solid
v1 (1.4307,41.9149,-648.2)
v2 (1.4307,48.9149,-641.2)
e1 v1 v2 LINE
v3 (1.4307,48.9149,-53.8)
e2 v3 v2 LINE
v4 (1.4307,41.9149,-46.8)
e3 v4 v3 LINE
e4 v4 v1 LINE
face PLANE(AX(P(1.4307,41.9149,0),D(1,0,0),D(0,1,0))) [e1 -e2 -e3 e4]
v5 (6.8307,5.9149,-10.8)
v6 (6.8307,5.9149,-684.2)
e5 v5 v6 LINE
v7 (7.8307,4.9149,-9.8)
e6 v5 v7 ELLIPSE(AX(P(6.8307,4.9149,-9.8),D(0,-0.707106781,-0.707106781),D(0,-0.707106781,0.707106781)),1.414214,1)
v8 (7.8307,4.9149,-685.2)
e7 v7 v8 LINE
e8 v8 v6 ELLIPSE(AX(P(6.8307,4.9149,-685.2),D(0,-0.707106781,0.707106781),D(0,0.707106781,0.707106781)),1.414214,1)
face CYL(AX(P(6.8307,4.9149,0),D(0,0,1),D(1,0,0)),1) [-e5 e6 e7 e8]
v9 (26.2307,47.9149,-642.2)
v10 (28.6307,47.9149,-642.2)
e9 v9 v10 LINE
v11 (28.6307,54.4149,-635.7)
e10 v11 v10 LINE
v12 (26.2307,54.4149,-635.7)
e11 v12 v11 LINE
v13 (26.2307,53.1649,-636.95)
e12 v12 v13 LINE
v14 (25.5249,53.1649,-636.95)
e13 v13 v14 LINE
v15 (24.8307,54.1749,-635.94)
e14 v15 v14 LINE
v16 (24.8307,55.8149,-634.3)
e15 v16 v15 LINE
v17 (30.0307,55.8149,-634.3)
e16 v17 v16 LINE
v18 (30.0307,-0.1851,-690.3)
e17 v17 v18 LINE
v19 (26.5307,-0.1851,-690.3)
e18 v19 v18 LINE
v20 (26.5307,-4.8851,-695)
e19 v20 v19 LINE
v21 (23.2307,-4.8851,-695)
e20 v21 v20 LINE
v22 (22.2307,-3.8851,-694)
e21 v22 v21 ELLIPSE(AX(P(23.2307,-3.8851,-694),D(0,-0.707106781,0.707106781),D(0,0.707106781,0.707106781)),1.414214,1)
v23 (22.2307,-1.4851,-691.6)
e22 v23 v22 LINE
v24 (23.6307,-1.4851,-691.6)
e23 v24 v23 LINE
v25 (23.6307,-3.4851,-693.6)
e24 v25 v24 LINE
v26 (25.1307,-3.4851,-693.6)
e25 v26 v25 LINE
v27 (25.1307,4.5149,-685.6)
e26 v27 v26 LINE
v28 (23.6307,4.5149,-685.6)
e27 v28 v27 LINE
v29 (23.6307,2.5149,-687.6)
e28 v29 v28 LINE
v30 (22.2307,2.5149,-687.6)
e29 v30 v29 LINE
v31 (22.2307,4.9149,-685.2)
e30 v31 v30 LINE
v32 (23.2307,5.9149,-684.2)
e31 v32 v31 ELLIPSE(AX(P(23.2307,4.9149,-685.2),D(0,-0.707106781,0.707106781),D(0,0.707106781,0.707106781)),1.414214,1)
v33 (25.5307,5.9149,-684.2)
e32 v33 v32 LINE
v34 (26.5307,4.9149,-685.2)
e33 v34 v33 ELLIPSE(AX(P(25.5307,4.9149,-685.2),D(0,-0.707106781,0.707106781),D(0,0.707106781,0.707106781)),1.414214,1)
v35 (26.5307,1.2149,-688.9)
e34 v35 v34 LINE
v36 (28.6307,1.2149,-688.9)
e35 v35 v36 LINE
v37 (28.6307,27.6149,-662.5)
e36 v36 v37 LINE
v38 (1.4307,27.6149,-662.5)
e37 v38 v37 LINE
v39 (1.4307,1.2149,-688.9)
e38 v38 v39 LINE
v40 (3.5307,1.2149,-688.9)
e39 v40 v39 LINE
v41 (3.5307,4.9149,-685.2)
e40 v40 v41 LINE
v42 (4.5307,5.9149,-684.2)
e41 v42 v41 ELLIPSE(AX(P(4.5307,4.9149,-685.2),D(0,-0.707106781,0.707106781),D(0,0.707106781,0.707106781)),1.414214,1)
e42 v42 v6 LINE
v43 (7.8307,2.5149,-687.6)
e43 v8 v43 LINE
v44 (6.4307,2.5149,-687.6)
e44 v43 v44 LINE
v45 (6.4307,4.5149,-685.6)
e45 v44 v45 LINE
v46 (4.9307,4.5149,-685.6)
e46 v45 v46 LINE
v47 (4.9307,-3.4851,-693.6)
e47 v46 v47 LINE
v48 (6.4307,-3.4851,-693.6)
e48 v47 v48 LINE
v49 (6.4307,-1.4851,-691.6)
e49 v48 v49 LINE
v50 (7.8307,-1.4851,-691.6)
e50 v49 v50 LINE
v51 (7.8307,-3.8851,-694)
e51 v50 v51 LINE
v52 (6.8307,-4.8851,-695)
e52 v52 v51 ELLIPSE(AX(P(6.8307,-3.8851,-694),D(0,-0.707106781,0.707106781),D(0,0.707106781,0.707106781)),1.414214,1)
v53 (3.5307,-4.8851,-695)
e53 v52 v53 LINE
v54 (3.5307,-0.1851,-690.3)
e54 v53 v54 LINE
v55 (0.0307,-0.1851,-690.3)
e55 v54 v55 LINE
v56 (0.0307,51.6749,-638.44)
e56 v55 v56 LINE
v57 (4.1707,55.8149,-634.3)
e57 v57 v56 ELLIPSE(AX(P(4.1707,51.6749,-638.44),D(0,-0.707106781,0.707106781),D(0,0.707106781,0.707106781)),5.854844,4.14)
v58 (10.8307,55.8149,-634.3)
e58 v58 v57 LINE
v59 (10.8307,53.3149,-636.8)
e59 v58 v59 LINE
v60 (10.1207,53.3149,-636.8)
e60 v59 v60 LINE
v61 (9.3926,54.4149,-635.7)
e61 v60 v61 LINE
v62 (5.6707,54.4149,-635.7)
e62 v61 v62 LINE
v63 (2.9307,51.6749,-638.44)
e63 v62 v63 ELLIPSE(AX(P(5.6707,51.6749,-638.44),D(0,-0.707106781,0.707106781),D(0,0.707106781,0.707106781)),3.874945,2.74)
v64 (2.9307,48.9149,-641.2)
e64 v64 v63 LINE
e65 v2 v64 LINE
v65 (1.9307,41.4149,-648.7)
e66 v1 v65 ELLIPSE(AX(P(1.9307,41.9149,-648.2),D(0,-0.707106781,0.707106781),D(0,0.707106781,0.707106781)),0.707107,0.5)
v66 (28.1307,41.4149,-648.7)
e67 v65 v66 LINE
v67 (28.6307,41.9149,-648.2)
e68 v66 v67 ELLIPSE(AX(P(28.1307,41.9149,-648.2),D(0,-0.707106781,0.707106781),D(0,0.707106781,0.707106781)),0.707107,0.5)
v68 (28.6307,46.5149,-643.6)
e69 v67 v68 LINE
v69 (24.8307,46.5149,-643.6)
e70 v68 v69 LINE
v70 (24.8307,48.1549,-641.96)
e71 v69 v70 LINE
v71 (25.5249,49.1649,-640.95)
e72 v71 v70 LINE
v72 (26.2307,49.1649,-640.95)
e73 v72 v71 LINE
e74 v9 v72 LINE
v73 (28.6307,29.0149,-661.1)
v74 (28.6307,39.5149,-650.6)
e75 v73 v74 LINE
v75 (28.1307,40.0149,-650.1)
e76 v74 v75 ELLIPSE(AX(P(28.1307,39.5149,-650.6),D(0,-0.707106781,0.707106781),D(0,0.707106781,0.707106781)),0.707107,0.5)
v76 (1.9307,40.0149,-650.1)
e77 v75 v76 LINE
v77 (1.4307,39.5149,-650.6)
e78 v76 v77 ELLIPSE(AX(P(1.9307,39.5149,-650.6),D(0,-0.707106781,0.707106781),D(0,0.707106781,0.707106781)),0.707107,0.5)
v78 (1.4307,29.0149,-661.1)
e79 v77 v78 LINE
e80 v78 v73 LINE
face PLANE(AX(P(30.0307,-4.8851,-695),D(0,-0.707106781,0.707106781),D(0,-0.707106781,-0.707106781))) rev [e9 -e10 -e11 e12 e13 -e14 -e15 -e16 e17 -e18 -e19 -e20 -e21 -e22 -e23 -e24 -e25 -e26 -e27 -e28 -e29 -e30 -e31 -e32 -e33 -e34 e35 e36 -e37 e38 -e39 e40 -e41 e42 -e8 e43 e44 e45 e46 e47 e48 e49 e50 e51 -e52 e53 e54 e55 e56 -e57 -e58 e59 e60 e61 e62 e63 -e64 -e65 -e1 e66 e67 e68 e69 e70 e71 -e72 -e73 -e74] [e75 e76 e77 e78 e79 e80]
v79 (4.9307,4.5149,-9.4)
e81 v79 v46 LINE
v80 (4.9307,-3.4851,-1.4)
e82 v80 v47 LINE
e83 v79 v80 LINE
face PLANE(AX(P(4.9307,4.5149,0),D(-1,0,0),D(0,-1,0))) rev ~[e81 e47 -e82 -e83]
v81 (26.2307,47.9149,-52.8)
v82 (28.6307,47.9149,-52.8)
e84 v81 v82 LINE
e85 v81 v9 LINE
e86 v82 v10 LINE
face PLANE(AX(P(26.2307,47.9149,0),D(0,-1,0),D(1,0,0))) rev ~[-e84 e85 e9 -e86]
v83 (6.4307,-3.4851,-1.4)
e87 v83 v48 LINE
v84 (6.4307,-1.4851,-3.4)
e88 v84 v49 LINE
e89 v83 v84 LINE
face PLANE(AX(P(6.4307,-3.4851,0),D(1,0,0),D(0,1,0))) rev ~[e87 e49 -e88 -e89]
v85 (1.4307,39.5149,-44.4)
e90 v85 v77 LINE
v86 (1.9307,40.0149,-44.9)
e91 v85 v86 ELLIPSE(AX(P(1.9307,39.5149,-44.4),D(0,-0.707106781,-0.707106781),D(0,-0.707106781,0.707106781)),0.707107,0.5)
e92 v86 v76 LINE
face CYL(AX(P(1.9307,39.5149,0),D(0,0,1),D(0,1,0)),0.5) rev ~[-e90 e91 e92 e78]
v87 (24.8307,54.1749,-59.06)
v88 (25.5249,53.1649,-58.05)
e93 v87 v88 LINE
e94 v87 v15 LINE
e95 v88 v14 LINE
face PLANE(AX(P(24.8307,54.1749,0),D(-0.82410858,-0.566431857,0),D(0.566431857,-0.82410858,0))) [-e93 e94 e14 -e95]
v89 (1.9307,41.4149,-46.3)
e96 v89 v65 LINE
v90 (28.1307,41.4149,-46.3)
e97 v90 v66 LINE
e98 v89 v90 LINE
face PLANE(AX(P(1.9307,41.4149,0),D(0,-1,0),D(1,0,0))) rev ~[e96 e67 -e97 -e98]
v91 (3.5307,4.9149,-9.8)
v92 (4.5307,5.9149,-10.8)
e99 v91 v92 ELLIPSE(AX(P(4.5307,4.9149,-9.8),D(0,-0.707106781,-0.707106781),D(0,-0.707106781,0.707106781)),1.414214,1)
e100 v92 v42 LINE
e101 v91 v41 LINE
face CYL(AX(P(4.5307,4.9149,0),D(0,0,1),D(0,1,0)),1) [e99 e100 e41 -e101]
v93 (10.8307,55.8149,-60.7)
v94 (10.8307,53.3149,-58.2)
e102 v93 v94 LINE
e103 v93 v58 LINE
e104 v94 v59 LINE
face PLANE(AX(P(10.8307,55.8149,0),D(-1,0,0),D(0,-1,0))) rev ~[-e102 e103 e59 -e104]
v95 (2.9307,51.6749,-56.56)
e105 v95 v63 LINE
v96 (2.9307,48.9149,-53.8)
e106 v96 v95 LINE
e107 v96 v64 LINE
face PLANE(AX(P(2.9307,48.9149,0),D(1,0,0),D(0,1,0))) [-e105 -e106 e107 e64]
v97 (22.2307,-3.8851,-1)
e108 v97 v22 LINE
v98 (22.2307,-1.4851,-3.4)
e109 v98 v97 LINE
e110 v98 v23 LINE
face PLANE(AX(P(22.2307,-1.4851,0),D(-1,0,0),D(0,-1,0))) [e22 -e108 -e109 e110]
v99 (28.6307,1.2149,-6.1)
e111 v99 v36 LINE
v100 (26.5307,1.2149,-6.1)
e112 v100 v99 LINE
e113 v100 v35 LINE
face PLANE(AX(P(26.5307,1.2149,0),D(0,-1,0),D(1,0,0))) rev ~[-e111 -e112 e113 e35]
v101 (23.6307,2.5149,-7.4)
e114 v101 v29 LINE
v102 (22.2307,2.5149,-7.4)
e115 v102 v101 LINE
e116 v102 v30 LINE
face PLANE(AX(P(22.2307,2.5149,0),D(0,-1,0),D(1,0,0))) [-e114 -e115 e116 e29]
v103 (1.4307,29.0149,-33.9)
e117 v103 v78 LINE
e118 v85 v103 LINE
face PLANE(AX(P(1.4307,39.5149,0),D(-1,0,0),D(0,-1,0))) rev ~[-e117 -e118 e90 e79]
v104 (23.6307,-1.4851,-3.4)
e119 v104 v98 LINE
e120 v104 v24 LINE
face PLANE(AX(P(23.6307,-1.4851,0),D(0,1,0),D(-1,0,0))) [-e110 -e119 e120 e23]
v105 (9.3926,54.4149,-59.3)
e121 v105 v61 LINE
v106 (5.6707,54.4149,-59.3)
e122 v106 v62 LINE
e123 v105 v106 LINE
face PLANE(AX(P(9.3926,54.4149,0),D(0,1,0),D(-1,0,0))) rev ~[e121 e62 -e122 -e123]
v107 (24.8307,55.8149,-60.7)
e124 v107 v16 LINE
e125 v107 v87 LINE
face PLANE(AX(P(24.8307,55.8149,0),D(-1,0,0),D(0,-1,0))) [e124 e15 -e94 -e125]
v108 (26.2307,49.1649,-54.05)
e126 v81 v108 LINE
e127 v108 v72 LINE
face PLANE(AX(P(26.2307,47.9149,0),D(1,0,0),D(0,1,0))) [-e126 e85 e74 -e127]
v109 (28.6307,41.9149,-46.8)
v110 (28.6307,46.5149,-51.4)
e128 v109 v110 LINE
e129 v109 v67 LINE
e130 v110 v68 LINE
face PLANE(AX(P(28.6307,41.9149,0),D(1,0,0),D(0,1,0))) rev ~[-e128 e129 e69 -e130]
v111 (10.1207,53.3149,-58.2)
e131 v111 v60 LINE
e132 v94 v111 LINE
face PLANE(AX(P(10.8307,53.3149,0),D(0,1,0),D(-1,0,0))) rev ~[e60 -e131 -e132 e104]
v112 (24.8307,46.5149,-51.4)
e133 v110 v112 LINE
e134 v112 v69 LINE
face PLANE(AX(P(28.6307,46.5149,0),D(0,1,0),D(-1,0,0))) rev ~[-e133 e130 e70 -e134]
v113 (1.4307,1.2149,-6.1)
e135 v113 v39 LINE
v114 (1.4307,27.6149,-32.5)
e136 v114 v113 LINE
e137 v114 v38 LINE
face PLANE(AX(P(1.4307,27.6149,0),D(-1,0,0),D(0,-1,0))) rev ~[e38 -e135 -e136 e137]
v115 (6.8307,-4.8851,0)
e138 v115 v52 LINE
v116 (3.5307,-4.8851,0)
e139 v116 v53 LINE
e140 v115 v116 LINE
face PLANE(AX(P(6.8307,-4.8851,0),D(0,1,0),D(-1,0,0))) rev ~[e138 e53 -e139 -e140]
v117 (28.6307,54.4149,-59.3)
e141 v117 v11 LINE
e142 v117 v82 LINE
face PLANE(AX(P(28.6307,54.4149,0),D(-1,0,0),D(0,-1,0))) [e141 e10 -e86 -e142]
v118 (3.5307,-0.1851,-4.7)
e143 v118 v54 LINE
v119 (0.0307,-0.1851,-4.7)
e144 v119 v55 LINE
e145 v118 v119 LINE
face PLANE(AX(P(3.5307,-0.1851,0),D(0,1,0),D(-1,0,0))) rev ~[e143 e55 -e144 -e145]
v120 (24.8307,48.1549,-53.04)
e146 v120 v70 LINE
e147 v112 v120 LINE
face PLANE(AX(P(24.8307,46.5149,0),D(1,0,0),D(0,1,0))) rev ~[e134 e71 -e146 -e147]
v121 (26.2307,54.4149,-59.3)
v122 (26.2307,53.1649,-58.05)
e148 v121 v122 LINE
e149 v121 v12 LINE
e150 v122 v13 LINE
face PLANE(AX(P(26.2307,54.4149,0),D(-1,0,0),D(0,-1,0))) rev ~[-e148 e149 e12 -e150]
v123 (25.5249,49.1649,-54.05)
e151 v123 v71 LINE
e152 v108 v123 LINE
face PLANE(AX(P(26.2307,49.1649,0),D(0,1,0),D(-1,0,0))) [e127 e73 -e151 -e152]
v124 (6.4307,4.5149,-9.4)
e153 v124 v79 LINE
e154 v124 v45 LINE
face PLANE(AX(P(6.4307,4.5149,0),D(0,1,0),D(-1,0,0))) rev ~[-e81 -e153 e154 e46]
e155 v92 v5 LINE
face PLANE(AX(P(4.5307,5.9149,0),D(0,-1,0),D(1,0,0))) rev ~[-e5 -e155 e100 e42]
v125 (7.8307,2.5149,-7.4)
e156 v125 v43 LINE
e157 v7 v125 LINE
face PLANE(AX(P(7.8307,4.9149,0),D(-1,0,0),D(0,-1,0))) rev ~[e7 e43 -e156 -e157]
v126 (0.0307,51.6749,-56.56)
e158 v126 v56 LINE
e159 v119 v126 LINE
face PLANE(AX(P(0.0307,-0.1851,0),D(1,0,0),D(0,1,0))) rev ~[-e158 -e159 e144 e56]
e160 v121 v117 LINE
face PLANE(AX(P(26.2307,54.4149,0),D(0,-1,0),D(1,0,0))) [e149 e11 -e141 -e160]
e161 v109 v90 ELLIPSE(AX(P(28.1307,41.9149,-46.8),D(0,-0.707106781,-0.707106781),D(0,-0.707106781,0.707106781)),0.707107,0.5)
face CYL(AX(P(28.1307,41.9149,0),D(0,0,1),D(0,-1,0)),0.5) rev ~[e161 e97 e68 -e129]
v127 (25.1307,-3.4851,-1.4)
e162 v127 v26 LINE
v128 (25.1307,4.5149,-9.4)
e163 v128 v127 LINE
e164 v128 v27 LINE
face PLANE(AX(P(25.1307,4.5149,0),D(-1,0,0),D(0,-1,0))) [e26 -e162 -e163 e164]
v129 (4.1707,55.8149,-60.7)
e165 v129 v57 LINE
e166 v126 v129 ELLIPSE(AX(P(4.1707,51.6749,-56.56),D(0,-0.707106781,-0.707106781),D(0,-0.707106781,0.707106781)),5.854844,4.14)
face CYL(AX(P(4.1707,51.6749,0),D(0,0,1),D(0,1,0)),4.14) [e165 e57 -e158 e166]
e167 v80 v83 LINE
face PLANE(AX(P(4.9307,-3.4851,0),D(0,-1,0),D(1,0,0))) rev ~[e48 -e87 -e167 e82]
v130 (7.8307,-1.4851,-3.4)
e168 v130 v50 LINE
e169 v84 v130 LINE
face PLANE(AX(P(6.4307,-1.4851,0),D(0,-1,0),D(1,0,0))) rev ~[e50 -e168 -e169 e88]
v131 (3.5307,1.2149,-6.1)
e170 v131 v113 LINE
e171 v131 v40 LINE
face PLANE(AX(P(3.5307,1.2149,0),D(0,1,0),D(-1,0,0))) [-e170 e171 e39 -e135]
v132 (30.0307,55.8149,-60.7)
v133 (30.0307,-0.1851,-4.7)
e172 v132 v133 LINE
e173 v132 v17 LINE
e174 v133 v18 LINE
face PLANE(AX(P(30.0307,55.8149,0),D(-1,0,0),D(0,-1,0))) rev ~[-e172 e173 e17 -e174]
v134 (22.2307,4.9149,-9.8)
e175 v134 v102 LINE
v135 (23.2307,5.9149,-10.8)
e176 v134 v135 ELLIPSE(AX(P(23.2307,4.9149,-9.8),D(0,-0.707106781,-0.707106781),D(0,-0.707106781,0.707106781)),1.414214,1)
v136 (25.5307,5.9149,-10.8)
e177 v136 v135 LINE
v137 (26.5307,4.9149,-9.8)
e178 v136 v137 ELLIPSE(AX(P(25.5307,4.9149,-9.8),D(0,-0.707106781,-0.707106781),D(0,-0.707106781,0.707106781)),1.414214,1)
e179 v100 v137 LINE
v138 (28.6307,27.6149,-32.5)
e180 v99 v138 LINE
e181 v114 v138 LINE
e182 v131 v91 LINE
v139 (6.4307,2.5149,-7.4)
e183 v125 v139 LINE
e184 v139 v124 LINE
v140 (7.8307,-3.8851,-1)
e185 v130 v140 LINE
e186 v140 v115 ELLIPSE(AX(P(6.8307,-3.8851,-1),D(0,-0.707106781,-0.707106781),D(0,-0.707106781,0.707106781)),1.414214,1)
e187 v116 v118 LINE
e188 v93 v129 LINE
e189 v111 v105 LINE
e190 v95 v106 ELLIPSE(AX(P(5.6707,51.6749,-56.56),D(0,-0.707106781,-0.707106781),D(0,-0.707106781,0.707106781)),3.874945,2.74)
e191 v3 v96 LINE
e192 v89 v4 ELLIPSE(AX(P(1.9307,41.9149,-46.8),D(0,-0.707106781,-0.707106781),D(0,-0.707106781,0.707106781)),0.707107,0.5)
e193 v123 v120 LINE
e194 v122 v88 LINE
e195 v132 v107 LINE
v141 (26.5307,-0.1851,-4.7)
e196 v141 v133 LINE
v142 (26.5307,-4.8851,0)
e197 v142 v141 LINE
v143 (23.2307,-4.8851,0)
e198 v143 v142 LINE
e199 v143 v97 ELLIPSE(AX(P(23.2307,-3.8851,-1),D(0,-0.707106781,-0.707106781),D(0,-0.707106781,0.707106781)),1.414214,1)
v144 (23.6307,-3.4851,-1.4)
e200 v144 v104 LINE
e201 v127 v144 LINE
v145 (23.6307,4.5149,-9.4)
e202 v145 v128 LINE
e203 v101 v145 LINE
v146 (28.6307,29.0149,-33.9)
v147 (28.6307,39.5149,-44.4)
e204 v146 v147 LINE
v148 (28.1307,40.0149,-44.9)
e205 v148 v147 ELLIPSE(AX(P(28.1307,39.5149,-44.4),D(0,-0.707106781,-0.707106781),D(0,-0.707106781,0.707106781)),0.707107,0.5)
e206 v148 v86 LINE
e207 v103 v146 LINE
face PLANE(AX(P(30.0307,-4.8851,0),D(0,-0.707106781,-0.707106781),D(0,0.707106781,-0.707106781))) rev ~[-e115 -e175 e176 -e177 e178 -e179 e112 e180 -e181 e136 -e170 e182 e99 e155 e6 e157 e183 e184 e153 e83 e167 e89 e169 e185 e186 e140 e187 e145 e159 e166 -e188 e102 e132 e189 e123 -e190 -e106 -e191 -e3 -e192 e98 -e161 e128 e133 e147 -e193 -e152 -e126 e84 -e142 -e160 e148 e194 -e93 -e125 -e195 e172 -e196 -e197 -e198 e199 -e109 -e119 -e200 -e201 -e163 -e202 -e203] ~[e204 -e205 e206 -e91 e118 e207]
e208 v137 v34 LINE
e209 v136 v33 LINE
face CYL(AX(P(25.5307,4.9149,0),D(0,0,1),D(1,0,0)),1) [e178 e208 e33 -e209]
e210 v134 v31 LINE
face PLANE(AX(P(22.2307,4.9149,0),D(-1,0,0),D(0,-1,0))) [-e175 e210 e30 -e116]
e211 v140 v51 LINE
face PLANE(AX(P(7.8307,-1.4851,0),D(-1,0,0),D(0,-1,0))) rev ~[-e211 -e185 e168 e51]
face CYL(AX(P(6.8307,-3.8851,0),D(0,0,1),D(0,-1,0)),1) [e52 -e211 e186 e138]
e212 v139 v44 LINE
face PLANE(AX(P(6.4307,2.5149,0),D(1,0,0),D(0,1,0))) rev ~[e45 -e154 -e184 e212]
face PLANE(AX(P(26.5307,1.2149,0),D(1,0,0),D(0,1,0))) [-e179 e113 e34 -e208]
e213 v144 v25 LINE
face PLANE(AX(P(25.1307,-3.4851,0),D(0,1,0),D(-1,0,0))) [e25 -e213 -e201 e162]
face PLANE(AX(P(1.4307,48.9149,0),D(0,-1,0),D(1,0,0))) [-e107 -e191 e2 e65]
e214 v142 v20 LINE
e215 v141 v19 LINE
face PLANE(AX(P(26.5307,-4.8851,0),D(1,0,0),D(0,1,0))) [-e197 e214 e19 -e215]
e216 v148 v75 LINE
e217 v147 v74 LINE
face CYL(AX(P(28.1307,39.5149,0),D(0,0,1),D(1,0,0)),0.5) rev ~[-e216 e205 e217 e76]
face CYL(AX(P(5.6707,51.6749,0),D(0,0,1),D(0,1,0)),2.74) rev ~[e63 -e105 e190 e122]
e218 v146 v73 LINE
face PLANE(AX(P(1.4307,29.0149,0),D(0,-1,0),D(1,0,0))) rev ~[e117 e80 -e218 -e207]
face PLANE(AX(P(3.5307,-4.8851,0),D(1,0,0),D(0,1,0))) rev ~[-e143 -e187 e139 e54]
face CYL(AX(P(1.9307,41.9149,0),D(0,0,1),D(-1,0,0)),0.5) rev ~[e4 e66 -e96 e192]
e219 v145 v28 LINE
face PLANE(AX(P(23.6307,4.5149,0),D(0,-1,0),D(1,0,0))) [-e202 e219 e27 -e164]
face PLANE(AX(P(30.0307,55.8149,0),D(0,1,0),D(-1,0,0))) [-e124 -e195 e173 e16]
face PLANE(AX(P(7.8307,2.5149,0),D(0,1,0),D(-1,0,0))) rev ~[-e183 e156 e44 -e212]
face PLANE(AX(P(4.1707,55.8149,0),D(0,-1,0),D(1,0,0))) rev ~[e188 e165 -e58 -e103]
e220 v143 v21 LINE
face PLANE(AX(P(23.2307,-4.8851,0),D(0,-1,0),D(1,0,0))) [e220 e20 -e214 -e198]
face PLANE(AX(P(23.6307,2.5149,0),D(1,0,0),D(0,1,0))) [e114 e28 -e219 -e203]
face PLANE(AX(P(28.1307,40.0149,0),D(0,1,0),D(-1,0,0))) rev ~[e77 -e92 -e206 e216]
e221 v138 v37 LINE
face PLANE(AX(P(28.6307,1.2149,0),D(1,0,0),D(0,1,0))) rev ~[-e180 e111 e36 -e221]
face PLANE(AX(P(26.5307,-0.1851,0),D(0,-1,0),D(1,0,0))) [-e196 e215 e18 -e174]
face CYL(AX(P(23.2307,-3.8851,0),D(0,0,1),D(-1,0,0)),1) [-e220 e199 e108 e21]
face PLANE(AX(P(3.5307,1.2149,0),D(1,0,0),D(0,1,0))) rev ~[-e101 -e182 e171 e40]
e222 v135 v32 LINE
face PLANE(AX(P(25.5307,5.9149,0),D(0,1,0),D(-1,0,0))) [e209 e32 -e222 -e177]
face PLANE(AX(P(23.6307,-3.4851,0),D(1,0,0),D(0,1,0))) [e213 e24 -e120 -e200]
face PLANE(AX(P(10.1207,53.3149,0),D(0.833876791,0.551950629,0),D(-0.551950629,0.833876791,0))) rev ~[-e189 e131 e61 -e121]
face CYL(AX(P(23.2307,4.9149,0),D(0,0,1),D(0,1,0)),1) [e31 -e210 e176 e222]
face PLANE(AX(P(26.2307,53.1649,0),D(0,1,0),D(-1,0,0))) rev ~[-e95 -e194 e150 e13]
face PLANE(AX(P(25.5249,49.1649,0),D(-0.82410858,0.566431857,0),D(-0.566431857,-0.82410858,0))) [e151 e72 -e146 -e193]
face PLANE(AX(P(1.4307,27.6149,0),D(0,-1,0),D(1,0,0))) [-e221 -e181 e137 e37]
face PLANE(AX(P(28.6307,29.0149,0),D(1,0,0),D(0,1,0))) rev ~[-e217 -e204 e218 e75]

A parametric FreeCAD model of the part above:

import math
import FreeCAD as App
import Part
import Sketcher

V = App.Vector
Q = App.Units.Quantity

doc = App.newDocument("Part")
body = doc.addObject("PartDesign::Body", "Body")

sketch1 = body.newObject("Sketcher::SketchObject", "Sketch")
sketch1.AttachmentSupport = (doc.getObject("XY_Plane"), [""])
sketch1.MapMode = "FlatFace"
sketch1.addGeometry(Part.LineSegment(V(28.1, 41.4, 0), V(1.9, 41.4, 0)), False)
sketch1.addGeometry(Part.ArcOfCircle(Part.Circle(V(1.9, 41.9, 0), V(0, 0, 1), 0.5), math.radians(180), math.radians(270)), False)
sketch1.addGeometry(Part.LineSegment(V(1.4, 41.9, 0), V(1.4, 48.9, 0)), False)
sketch1.addGeometry(Part.LineSegment(V(1.4, 48.9, 0), V(2.9, 48.9, 0)), False)
sketch1.addGeometry(Part.LineSegment(V(2.9, 48.9, 0), V(2.9, 51.7, 0)), False)
sketch1.addGeometry(Part.ArcOfCircle(Part.Circle(V(5.7, 51.7, 0), V(0, 0, 1), 2.7), math.radians(90), math.radians(180)), False)
sketch1.addGeometry(Part.LineSegment(V(5.7, 54.4, 0), V(9.4, 54.4, 0)), False)
sketch1.addGeometry(Part.LineSegment(V(9.4, 54.4, 0), V(10.1, 53.3, 0)), False)
sketch1.addGeometry(Part.LineSegment(V(10.1, 53.3, 0), V(10.8, 53.3, 0)), False)
sketch1.addGeometry(Part.LineSegment(V(10.8, 53.3, 0), V(10.8, 55.8, 0)), False)
sketch1.addGeometry(Part.LineSegment(V(10.8, 55.8, 0), V(4.2, 55.8, 0)), False)
sketch1.addGeometry(Part.ArcOfCircle(Part.Circle(V(4.2, 51.7, 0), V(0, 0, 1), 4.1), math.radians(90), math.radians(180)), False)
sketch1.addGeometry(Part.LineSegment(V(0, 51.7, 0), V(0, -0.2, 0)), False)
sketch1.addGeometry(Part.LineSegment(V(0, -0.2, 0), V(3.5, -0.2, 0)), False)
sketch1.addGeometry(Part.LineSegment(V(3.5, -0.2, 0), V(3.5, -4.9, 0)), False)
sketch1.addGeometry(Part.LineSegment(V(3.5, -4.9, 0), V(6.8, -4.9, 0)), False)
sketch1.addGeometry(Part.ArcOfCircle(Part.Circle(V(6.8, -3.9, 0), V(0, 0, 1), 1), math.radians(-90), math.radians(0)), False)
sketch1.addGeometry(Part.LineSegment(V(7.8, -3.9, 0), V(7.8, -1.5, 0)), False)
sketch1.addGeometry(Part.LineSegment(V(7.8, -1.5, 0), V(6.4, -1.5, 0)), False)
sketch1.addGeometry(Part.LineSegment(V(6.4, -1.5, 0), V(6.4, -3.5, 0)), False)
sketch1.addGeometry(Part.LineSegment(V(6.4, -3.5, 0), V(4.9, -3.5, 0)), False)
sketch1.addGeometry(Part.LineSegment(V(4.9, -3.5, 0), V(4.9, 4.5, 0)), False)
sketch1.addGeometry(Part.LineSegment(V(4.9, 4.5, 0), V(6.4, 4.5, 0)), False)
sketch1.addGeometry(Part.LineSegment(V(6.4, 4.5, 0), V(6.4, 2.5, 0)), False)
sketch1.addGeometry(Part.LineSegment(V(6.4, 2.5, 0), V(7.8, 2.5, 0)), False)
sketch1.addGeometry(Part.LineSegment(V(7.8, 2.5, 0), V(7.8, 4.9, 0)), False)
sketch1.addGeometry(Part.ArcOfCircle(Part.Circle(V(6.8, 4.9, 0), V(0, 0, 1), 1), math.radians(0), math.radians(90)), False)
sketch1.addGeometry(Part.LineSegment(V(6.8, 5.9, 0), V(4.5, 5.9, 0)), False)
sketch1.addGeometry(Part.ArcOfCircle(Part.Circle(V(4.5, 4.9, 0), V(0, 0, 1), 1), math.radians(90), math.radians(180)), False)
sketch1.addGeometry(Part.LineSegment(V(3.5, 4.9, 0), V(3.5, 1.2, 0)), False)
sketch1.addGeometry(Part.LineSegment(V(3.5, 1.2, 0), V(1.4, 1.2, 0)), False)
sketch1.addGeometry(Part.LineSegment(V(1.4, 1.2, 0), V(1.4, 27.6, 0)), False)
sketch1.addGeometry(Part.LineSegment(V(1.4, 27.6, 0), V(28.6, 27.6, 0)), False)
sketch1.addGeometry(Part.LineSegment(V(28.6, 27.6, 0), V(28.6, 1.2, 0)), False)
sketch1.addGeometry(Part.LineSegment(V(28.6, 1.2, 0), V(26.5, 1.2, 0)), False)
sketch1.addGeometry(Part.LineSegment(V(26.5, 1.2, 0), V(26.5, 4.9, 0)), False)
sketch1.addGeometry(Part.ArcOfCircle(Part.Circle(V(25.5, 4.9, 0), V(0, 0, 1), 1), math.radians(0), math.radians(90)), False)
sketch1.addGeometry(Part.LineSegment(V(25.5, 5.9, 0), V(23.2, 5.9, 0)), False)
sketch1.addGeometry(Part.ArcOfCircle(Part.Circle(V(23.2, 4.9, 0), V(0, 0, 1), 1), math.radians(90), math.radians(180)), False)
sketch1.addGeometry(Part.LineSegment(V(22.2, 4.9, 0), V(22.2, 2.5, 0)), False)
sketch1.addGeometry(Part.LineSegment(V(22.2, 2.5, 0), V(23.6, 2.5, 0)), False)
sketch1.addGeometry(Part.LineSegment(V(23.6, 2.5, 0), V(23.6, 4.5, 0)), False)
sketch1.addGeometry(Part.LineSegment(V(23.6, 4.5, 0), V(25.1, 4.5, 0)), False)
sketch1.addGeometry(Part.LineSegment(V(25.1, 4.5, 0), V(25.1, -3.5, 0)), False)
sketch1.addGeometry(Part.LineSegment(V(25.1, -3.5, 0), V(23.6, -3.5, 0)), False)
sketch1.addGeometry(Part.LineSegment(V(23.6, -3.5, 0), V(23.6, -1.5, 0)), False)
sketch1.addGeometry(Part.LineSegment(V(23.6, -1.5, 0), V(22.2, -1.5, 0)), False)
sketch1.addGeometry(Part.LineSegment(V(22.2, -1.5, 0), V(22.2, -3.9, 0)), False)
sketch1.addGeometry(Part.ArcOfCircle(Part.Circle(V(23.2, -3.9, 0), V(0, 0, 1), 1), math.radians(180), math.radians(270)), False)
sketch1.addGeometry(Part.LineSegment(V(23.2, -4.9, 0), V(26.5, -4.9, 0)), False)
sketch1.addGeometry(Part.LineSegment(V(26.5, -4.9, 0), V(26.5, -0.2, 0)), False)
sketch1.addGeometry(Part.LineSegment(V(26.5, -0.2, 0), V(30, -0.2, 0)), False)
sketch1.addGeometry(Part.LineSegment(V(30, -0.2, 0), V(30, 55.8, 0)), False)
sketch1.addGeometry(Part.LineSegment(V(30, 55.8, 0), V(24.8, 55.8, 0)), False)
sketch1.addGeometry(Part.LineSegment(V(24.8, 55.8, 0), V(24.8, 54.2, 0)), False)
sketch1.addGeometry(Part.LineSegment(V(24.8, 54.2, 0), V(25.5, 53.2, 0)), False)
sketch1.addGeometry(Part.LineSegment(V(25.5, 53.2, 0), V(26.2, 53.2, 0)), False)
sketch1.addGeometry(Part.LineSegment(V(26.2, 53.2, 0), V(26.2, 54.4, 0)), False)
sketch1.addGeometry(Part.LineSegment(V(26.2, 54.4, 0), V(28.6, 54.4, 0)), False)
sketch1.addGeometry(Part.LineSegment(V(28.6, 54.4, 0), V(28.6, 47.9, 0)), False)
sketch1.addGeometry(Part.LineSegment(V(28.6, 47.9, 0), V(26.2, 47.9, 0)), False)
sketch1.addGeometry(Part.LineSegment(V(26.2, 47.9, 0), V(26.2, 49.2, 0)), False)
sketch1.addGeometry(Part.LineSegment(V(26.2, 49.2, 0), V(25.5, 49.2, 0)), False)
sketch1.addGeometry(Part.LineSegment(V(25.5, 49.2, 0), V(24.8, 48.2, 0)), False)
sketch1.addGeometry(Part.LineSegment(V(24.8, 48.2, 0), V(24.8, 46.5, 0)), False)
sketch1.addGeometry(Part.LineSegment(V(24.8, 46.5, 0), V(28.6, 46.5, 0)), False)
sketch1.addGeometry(Part.LineSegment(V(28.6, 46.5, 0), V(28.6, 41.9, 0)), False)
sketch1.addGeometry(Part.ArcOfCircle(Part.Circle(V(28.1, 41.9, 0), V(0, 0, 1), 0.5), math.radians(-90), math.radians(0)), False)
sketch1.addGeometry(Part.LineSegment(V(1.9, 40, 0), V(28.1, 40, 0)), False)
sketch1.addGeometry(Part.ArcOfCircle(Part.Circle(V(28.1, 39.5, 0), V(0, 0, 1), 0.5), math.radians(0), math.radians(90)), False)
sketch1.addGeometry(Part.LineSegment(V(28.6, 39.5, 0), V(28.6, 29, 0)), False)
sketch1.addGeometry(Part.LineSegment(V(28.6, 29, 0), V(1.4, 29, 0)), False)
sketch1.addGeometry(Part.LineSegment(V(1.4, 29, 0), V(1.4, 39.5, 0)), False)
sketch1.addGeometry(Part.ArcOfCircle(Part.Circle(V(1.9, 39.5, 0), V(0, 0, 1), 0.5), math.radians(90), math.radians(180)), False)
sketch1.addConstraint(Sketcher.Constraint("Tangent", 0, 2, 1, 2))
sketch1.addConstraint(Sketcher.Constraint("Tangent", 1, 1, 2, 1))
sketch1.addConstraint(Sketcher.Constraint("Coincident", 2, 2, 3, 1))
sketch1.addConstraint(Sketcher.Constraint("Coincident", 3, 2, 4, 1))
sketch1.addConstraint(Sketcher.Constraint("Tangent", 4, 2, 5, 2))
sketch1.addConstraint(Sketcher.Constraint("Tangent", 5, 1, 6, 1))
sketch1.addConstraint(Sketcher.Constraint("Coincident", 6, 2, 7, 1))
sketch1.addConstraint(Sketcher.Constraint("Coincident", 7, 2, 8, 1))
sketch1.addConstraint(Sketcher.Constraint("Coincident", 8, 2, 9, 1))
sketch1.addConstraint(Sketcher.Constraint("Coincident", 9, 2, 10, 1))
sketch1.addConstraint(Sketcher.Constraint("Tangent", 10, 2, 11, 1))
sketch1.addConstraint(Sketcher.Constraint("Tangent", 11, 2, 12, 1))
sketch1.addConstraint(Sketcher.Constraint("Coincident", 12, 2, 13, 1))
sketch1.addConstraint(Sketcher.Constraint("Coincident", 13, 2, 14, 1))
sketch1.addConstraint(Sketcher.Constraint("Coincident", 14, 2, 15, 1))
sketch1.addConstraint(Sketcher.Constraint("Tangent", 15, 2, 16, 1))
sketch1.addConstraint(Sketcher.Constraint("Tangent", 16, 2, 17, 1))
sketch1.addConstraint(Sketcher.Constraint("Coincident", 17, 2, 18, 1))
sketch1.addConstraint(Sketcher.Constraint("Coincident", 18, 2, 19, 1))
sketch1.addConstraint(Sketcher.Constraint("Coincident", 19, 2, 20, 1))
sketch1.addConstraint(Sketcher.Constraint("Coincident", 20, 2, 21, 1))
sketch1.addConstraint(Sketcher.Constraint("Coincident", 21, 2, 22, 1))
sketch1.addConstraint(Sketcher.Constraint("Coincident", 22, 2, 23, 1))
sketch1.addConstraint(Sketcher.Constraint("Coincident", 23, 2, 24, 1))
sketch1.addConstraint(Sketcher.Constraint("Coincident", 24, 2, 25, 1))
sketch1.addConstraint(Sketcher.Constraint("Tangent", 25, 2, 26, 1))
sketch1.addConstraint(Sketcher.Constraint("Tangent", 26, 2, 27, 1))
sketch1.addConstraint(Sketcher.Constraint("Tangent", 27, 2, 28, 1))
sketch1.addConstraint(Sketcher.Constraint("Tangent", 28, 2, 29, 1))
sketch1.addConstraint(Sketcher.Constraint("Coincident", 29, 2, 30, 1))
sketch1.addConstraint(Sketcher.Constraint("Coincident", 30, 2, 31, 1))
sketch1.addConstraint(Sketcher.Constraint("Coincident", 31, 2, 32, 1))
sketch1.addConstraint(Sketcher.Constraint("Coincident", 32, 2, 33, 1))
sketch1.addConstraint(Sketcher.Constraint("Coincident", 33, 2, 34, 1))
sketch1.addConstraint(Sketcher.Constraint("Coincident", 34, 2, 35, 1))
sketch1.addConstraint(Sketcher.Constraint("Tangent", 35, 2, 36, 1))
sketch1.addConstraint(Sketcher.Constraint("Tangent", 36, 2, 37, 1))
sketch1.addConstraint(Sketcher.Constraint("Tangent", 37, 2, 38, 1))
sketch1.addConstraint(Sketcher.Constraint("Tangent", 38, 2, 39, 1))
sketch1.addConstraint(Sketcher.Constraint("Coincident", 39, 2, 40, 1))
sketch1.addConstraint(Sketcher.Constraint("Coincident", 40, 2, 41, 1))
sketch1.addConstraint(Sketcher.Constraint("Coincident", 41, 2, 42, 1))
sketch1.addConstraint(Sketcher.Constraint("Coincident", 42, 2, 43, 1))
sketch1.addConstraint(Sketcher.Constraint("Coincident", 43, 2, 44, 1))
sketch1.addConstraint(Sketcher.Constraint("Coincident", 44, 2, 45, 1))
sketch1.addConstraint(Sketcher.Constraint("Coincident", 45, 2, 46, 1))
sketch1.addConstraint(Sketcher.Constraint("Coincident", 46, 2, 47, 1))
sketch1.addConstraint(Sketcher.Constraint("Tangent", 47, 2, 48, 1))
sketch1.addConstraint(Sketcher.Constraint("Tangent", 48, 2, 49, 1))
sketch1.addConstraint(Sketcher.Constraint("Coincident", 49, 2, 50, 1))
sketch1.addConstraint(Sketcher.Constraint("Coincident", 50, 2, 51, 1))
sketch1.addConstraint(Sketcher.Constraint("Coincident", 51, 2, 52, 1))
sketch1.addConstraint(Sketcher.Constraint("Coincident", 52, 2, 53, 1))
sketch1.addConstraint(Sketcher.Constraint("Coincident", 53, 2, 54, 1))
sketch1.addConstraint(Sketcher.Constraint("Coincident", 54, 2, 55, 1))
sketch1.addConstraint(Sketcher.Constraint("Coincident", 55, 2, 56, 1))
sketch1.addConstraint(Sketcher.Constraint("Coincident", 56, 2, 57, 1))
sketch1.addConstraint(Sketcher.Constraint("Coincident", 57, 2, 58, 1))
sketch1.addConstraint(Sketcher.Constraint("Coincident", 58, 2, 59, 1))
sketch1.addConstraint(Sketcher.Constraint("Coincident", 59, 2, 60, 1))
sketch1.addConstraint(Sketcher.Constraint("Coincident", 60, 2, 61, 1))
sketch1.addConstraint(Sketcher.Constraint("Coincident", 61, 2, 62, 1))
sketch1.addConstraint(Sketcher.Constraint("Coincident", 62, 2, 63, 1))
sketch1.addConstraint(Sketcher.Constraint("Coincident", 63, 2, 64, 1))
sketch1.addConstraint(Sketcher.Constraint("Coincident", 64, 2, 65, 1))
sketch1.addConstraint(Sketcher.Constraint("Coincident", 65, 2, 66, 1))
sketch1.addConstraint(Sketcher.Constraint("Tangent", 66, 2, 67, 2))
sketch1.addConstraint(Sketcher.Constraint("Tangent", 67, 1, 0, 1))
sketch1.addConstraint(Sketcher.Constraint("Tangent", 68, 2, 69, 2))
sketch1.addConstraint(Sketcher.Constraint("Tangent", 69, 1, 70, 1))
sketch1.addConstraint(Sketcher.Constraint("Coincident", 70, 2, 71, 1))
sketch1.addConstraint(Sketcher.Constraint("Coincident", 71, 2, 72, 1))
sketch1.addConstraint(Sketcher.Constraint("Tangent", 72, 2, 73, 2))
sketch1.addConstraint(Sketcher.Constraint("Tangent", 73, 1, 68, 1))
sketch1.addConstraint(Sketcher.Constraint("Horizontal", 0))
sketch1.addConstraint(Sketcher.Constraint("Vertical", 2))
sketch1.addConstraint(Sketcher.Constraint("Horizontal", 3))
sketch1.addConstraint(Sketcher.Constraint("Vertical", 4))
sketch1.addConstraint(Sketcher.Constraint("Horizontal", 6))
sketch1.addConstraint(Sketcher.Constraint("Horizontal", 8))
sketch1.addConstraint(Sketcher.Constraint("Vertical", 9))
sketch1.addConstraint(Sketcher.Constraint("Horizontal", 10))
sketch1.addConstraint(Sketcher.Constraint("Vertical", 12))
sketch1.addConstraint(Sketcher.Constraint("Horizontal", 13))
sketch1.addConstraint(Sketcher.Constraint("Vertical", 14))
sketch1.addConstraint(Sketcher.Constraint("Horizontal", 15))
sketch1.addConstraint(Sketcher.Constraint("Vertical", 17))
sketch1.addConstraint(Sketcher.Constraint("Horizontal", 18))
sketch1.addConstraint(Sketcher.Constraint("Vertical", 19))
sketch1.addConstraint(Sketcher.Constraint("Horizontal", 20))
sketch1.addConstraint(Sketcher.Constraint("Vertical", 21))
sketch1.addConstraint(Sketcher.Constraint("Horizontal", 22))
sketch1.addConstraint(Sketcher.Constraint("Vertical", 23))
sketch1.addConstraint(Sketcher.Constraint("Horizontal", 24))
sketch1.addConstraint(Sketcher.Constraint("Vertical", 25))
sketch1.addConstraint(Sketcher.Constraint("Horizontal", 27))
sketch1.addConstraint(Sketcher.Constraint("Vertical", 29))
sketch1.addConstraint(Sketcher.Constraint("Horizontal", 30))
sketch1.addConstraint(Sketcher.Constraint("Vertical", 31))
sketch1.addConstraint(Sketcher.Constraint("Horizontal", 32))
sketch1.addConstraint(Sketcher.Constraint("Vertical", 33))
sketch1.addConstraint(Sketcher.Constraint("Horizontal", 34))
sketch1.addConstraint(Sketcher.Constraint("Vertical", 35))
sketch1.addConstraint(Sketcher.Constraint("Horizontal", 37))
sketch1.addConstraint(Sketcher.Constraint("Vertical", 39))
sketch1.addConstraint(Sketcher.Constraint("Horizontal", 40))
sketch1.addConstraint(Sketcher.Constraint("Vertical", 41))
sketch1.addConstraint(Sketcher.Constraint("Horizontal", 42))
sketch1.addConstraint(Sketcher.Constraint("Vertical", 43))
sketch1.addConstraint(Sketcher.Constraint("Horizontal", 44))
sketch1.addConstraint(Sketcher.Constraint("Vertical", 45))
sketch1.addConstraint(Sketcher.Constraint("Horizontal", 46))
sketch1.addConstraint(Sketcher.Constraint("Vertical", 47))
sketch1.addConstraint(Sketcher.Constraint("Horizontal", 49))
sketch1.addConstraint(Sketcher.Constraint("Vertical", 50))
sketch1.addConstraint(Sketcher.Constraint("Horizontal", 51))
sketch1.addConstraint(Sketcher.Constraint("Vertical", 52))
sketch1.addConstraint(Sketcher.Constraint("Horizontal", 53))
sketch1.addConstraint(Sketcher.Constraint("Vertical", 54))
sketch1.addConstraint(Sketcher.Constraint("Horizontal", 56))
sketch1.addConstraint(Sketcher.Constraint("Vertical", 57))
sketch1.addConstraint(Sketcher.Constraint("Horizontal", 58))
sketch1.addConstraint(Sketcher.Constraint("Vertical", 59))
sketch1.addConstraint(Sketcher.Constraint("Horizontal", 60))
sketch1.addConstraint(Sketcher.Constraint("Vertical", 61))
sketch1.addConstraint(Sketcher.Constraint("Horizontal", 62))
sketch1.addConstraint(Sketcher.Constraint("Vertical", 64))
sketch1.addConstraint(Sketcher.Constraint("Horizontal", 65))
sketch1.addConstraint(Sketcher.Constraint("Vertical", 66))
sketch1.addConstraint(Sketcher.Constraint("Horizontal", 68))
sketch1.addConstraint(Sketcher.Constraint("Vertical", 70))
sketch1.addConstraint(Sketcher.Constraint("Horizontal", 71))
sketch1.addConstraint(Sketcher.Constraint("Vertical", 72))
sketch1.addConstraint(Sketcher.Constraint("Equal", 16, 26))
sketch1.addConstraint(Sketcher.Constraint("Equal", 26, 28))
sketch1.addConstraint(Sketcher.Constraint("Equal", 28, 36))
sketch1.addConstraint(Sketcher.Constraint("Equal", 36, 38))
sketch1.addConstraint(Sketcher.Constraint("Equal", 38, 48))
sketch1.addConstraint(Sketcher.Constraint("Equal", 1, 67))
sketch1.addConstraint(Sketcher.Constraint("Equal", 67, 69))
sketch1.addConstraint(Sketcher.Constraint("Equal", 69, 73))
sketch1.addConstraint(Sketcher.Constraint("Horizontal", 5, 3, 11, 3))
sketch1.addConstraint(Sketcher.Constraint("Horizontal", 28, 3, 36, 3))
sketch1.addConstraint(Sketcher.Constraint("Horizontal", 16, 3, 48, 3))
sketch1.addConstraint(Sketcher.Constraint("Horizontal", 30, 2, 33, 2))
sketch1.addConstraint(Sketcher.Constraint("Horizontal", 24, 2, 39, 2))
sketch1.addConstraint(Sketcher.Constraint("Horizontal", 22, 2, 41, 2))
sketch1.addConstraint(Sketcher.Constraint("Horizontal", 20, 2, 43, 2))
sketch1.addConstraint(Sketcher.Constraint("Horizontal", 18, 2, 45, 2))
sketch1.addConstraint(Sketcher.Constraint("Horizontal", 13, 2, 50, 2))
sketch1.addConstraint(Sketcher.Constraint("Horizontal", 10, 2, 52, 2))
sketch1.addConstraint(Sketcher.Constraint("Horizontal", 6, 2, 57, 2))
sketch1.addConstraint(Sketcher.Constraint("Vertical", 16, 3, 26, 3))
sketch1.addConstraint(Sketcher.Constraint("Vertical", 38, 3, 48, 3))
sketch1.addConstraint(Sketcher.Constraint("Vertical", 67, 3, 69, 3))
sketch1.addConstraint(Sketcher.Constraint("Vertical", 1, 3, 73, 3))
sketch1.addConstraint(Sketcher.Constraint("Vertical", 19, 2, 22, 2))
sketch1.addConstraint(Sketcher.Constraint("Vertical", 14, 2, 28, 2))
sketch1.addConstraint(Sketcher.Constraint("Vertical", 2, 2, 30, 2))
sketch1.addConstraint(Sketcher.Constraint("Vertical", 41, 2, 44, 2))
sketch1.addConstraint(Sketcher.Constraint("Vertical", 35, 2, 49, 2))
sketch1.addConstraint(Sketcher.Constraint("Vertical", 33, 2, 58, 2))
sketch1.addConstraint(Sketcher.Constraint("Vertical", 57, 2, 60, 2))
sketch1.addConstraint(Sketcher.Constraint("Vertical", 55, 2, 62, 2))
sketch1.addConstraint(Sketcher.Constraint("Vertical", 54, 2, 63, 2))
sketch1.addConstraint(Sketcher.Constraint("Vertical", 59, 2, 65, 2))
sketch1.addConstraint(Sketcher.Constraint("Equal", 3, 20))
sketch1.addConstraint(Sketcher.Constraint("Equal", 30, 34))
sketch1.addConstraint(Sketcher.Constraint("Equal", 27, 37))
sketch1.addConstraint(Sketcher.Constraint("Equal", 24, 40))
sketch1.addConstraint(Sketcher.Constraint("Equal", 22, 42))
sketch1.addConstraint(Sketcher.Constraint("Equal", 13, 51))
sketch1.addConstraint(Sketcher.Constraint("Equal", 60, 17))
sketch1.addConstraint(Sketcher.Constraint("Equal", 19, 23))
sketch1.addConstraint(Sketcher.Constraint("Equal", 17, 25))
sketch1.addConstraint(Sketcher.Constraint("Equal", 57, 61))
sketch1.addConstraint(Sketcher.Constraint("Equal", 54, 64))
sketch1.addConstraint(Sketcher.Constraint("Equal", 55, 63))
sketch1.addConstraint(Sketcher.Constraint("Radius", 16, Q("1 mm")))
sketch1.addConstraint(Sketcher.Constraint("Radius", 1, Q("0.5 mm")))
sketch1.addConstraint(Sketcher.Constraint("DistanceY", 19, 2, 19, 1, Q("2 mm")))
sketch1.addConstraint(Sketcher.Constraint("DistanceY", 21, 1, 21, 2, Q("8 mm")))
sketch1.addConstraint(Sketcher.Constraint("DistanceY", 52, 1, 52, 2, Q("56 mm")))
sketch1.addConstraint(Sketcher.Constraint("Radius", 5, Q("2.74 mm")))
sketch1.addConstraint(Sketcher.Constraint("Radius", 11, Q("4.14 mm")))
sketch1.addConstraint(Sketcher.Constraint("DistanceX", 3, 1, 3, 2, Q("1.5 mm")))
sketch1.addConstraint(Sketcher.Constraint("DistanceX", 13, 1, 13, 2, Q("3.5 mm")))
sketch1.addConstraint(Sketcher.Constraint("DistanceX", 18, 2, 18, 1, Q("1.4 mm")))
sketch1.addConstraint(Sketcher.Constraint("DistanceX", 32, 1, 32, 2, Q("27.2 mm")))
sketch1.addConstraint(Sketcher.Constraint("DistanceX", 58, 1, 58, 2, Q("2.4 mm")))
sketch1.addConstraint(Sketcher.Constraint("DistanceY", 9, 1, 9, 2, Q("2.5 mm")))
sketch1.addConstraint(Sketcher.Constraint("DistanceY", 14, 2, 14, 1, Q("4.7 mm")))
sketch1.addConstraint(Sketcher.Constraint("DistanceY", 59, 2, 59, 1, Q("6.5 mm")))
sketch1.addConstraint(Sketcher.Constraint("DistanceX", 8, 1, 8, 2, Q("0.71 mm")))
sketch1.addConstraint(Sketcher.Constraint("DistanceY", 2, 1, 2, 2, Q("7 mm")))
sketch1.addConstraint(Sketcher.Constraint("DistanceX", 15, 1, 15, 2, Q("3.3 mm")))
sketch1.addConstraint(Sketcher.Constraint("DistanceX", 30, 2, 30, 1, Q("2.1 mm")))
sketch1.addConstraint(Sketcher.Constraint("DistanceX", 53, 2, 53, 1, Q("5.2 mm")))
sketch1.addConstraint(Sketcher.Constraint("DistanceX", 56, 1, 56, 2, Q("0.7058 mm")))
sketch1.addConstraint(Sketcher.Constraint("DistanceY", 29, 2, 29, 1, Q("3.7 mm")))
sketch1.addConstraint(Sketcher.Constraint("DistanceY", 31, 1, 31, 2, Q("26.4 mm")))
sketch1.addConstraint(Sketcher.Constraint("DistanceY", 66, 2, 66, 1, Q("4.6 mm")))
sketch1.addConstraint(Sketcher.Constraint("DistanceY", 70, 2, 70, 1, Q("10.5 mm")))
sketch1.addConstraint(Sketcher.Constraint("Angle", 7, Q("-56.499 deg")))
sketch1.addConstraint(Sketcher.Constraint("DistanceX", 10, 2, 10, 1, Q("6.66 mm")))
sketch1.addConstraint(Sketcher.Constraint("DistanceY", 54, 2, 54, 1, Q("1.64 mm")))
sketch1.addConstraint(Sketcher.Constraint("DistanceY", 57, 1, 57, 2, Q("1.25 mm")))
sketch1.addConstraint(Sketcher.Constraint("DistanceY", -1, 1, 1, 3, Q("41.915 mm")))
sketch1.addConstraint(Sketcher.Constraint("DistanceY", -1, 1, 69, 3, Q("39.515 mm")))
sketch1.addConstraint(Sketcher.Constraint("DistanceX", -1, 1, 55, 2, Q("25.525 mm")))
pad1 = body.newObject("PartDesign::Pad", "Pad")
pad1.Profile = sketch1
pad1.Length = 695
pad1.Reversed = True

sketch2 = body.newObject("Sketcher::SketchObject", "Sketch001")
sketch2.AttachmentSupport = (doc.getObject("YZ_Plane"), [""])
sketch2.MapMode = "FlatFace"
sketch2.AttachmentOffset = App.Placement(V(0, 0, 30.0307), App.Rotation())
sketch2.addGeometry(Part.LineSegment(V(-5, 0, 0), V(56, -61, 0)), False)
sketch2.addGeometry(Part.LineSegment(V(56, -61, 0), V(56, 0, 0)), False)
sketch2.addGeometry(Part.LineSegment(V(56, 0, 0), V(-5, 0, 0)), False)
sketch2.addConstraint(Sketcher.Constraint("Coincident", 0, 2, 1, 1))
sketch2.addConstraint(Sketcher.Constraint("Coincident", 1, 2, 2, 1))
sketch2.addConstraint(Sketcher.Constraint("Coincident", 2, 2, 0, 1))
sketch2.addConstraint(Sketcher.Constraint("Vertical", 1))
sketch2.addConstraint(Sketcher.Constraint("Horizontal", 2))
sketch2.addConstraint(Sketcher.Constraint("PointOnObject", 1, 2, -1))
sketch2.addConstraint(Sketcher.Constraint("Equal", 2, 1))
sketch2.addConstraint(Sketcher.Constraint("DistanceX", 2, 2, 2, 1, Q("60.7 mm")))
sketch2.addConstraint(Sketcher.Constraint("DistanceX", -1, 1, 0, 2, Q("55.815 mm")))
pocket1 = body.newObject("PartDesign::Pocket", "Pocket")
pocket1.Profile = sketch2
pocket1.Type = "ThroughAll"
doc.recompute()

datumplane = body.newObject("PartDesign::Plane", "DatumPlane")
datumplane.AttachmentSupport = (doc.getObject("XY_Plane"), [""])
datumplane.MapMode = "FlatFace"
datumplane.AttachmentOffset = App.Placement(V(0, 0, -347.5), App.Rotation())
mirrored = body.newObject("PartDesign::Mirrored", "Mirrored")
mirrored.Originals = [pocket1]
mirrored.MirrorPlane = (datumplane, [""])
body.Tip = mirrored

doc.recompute()
